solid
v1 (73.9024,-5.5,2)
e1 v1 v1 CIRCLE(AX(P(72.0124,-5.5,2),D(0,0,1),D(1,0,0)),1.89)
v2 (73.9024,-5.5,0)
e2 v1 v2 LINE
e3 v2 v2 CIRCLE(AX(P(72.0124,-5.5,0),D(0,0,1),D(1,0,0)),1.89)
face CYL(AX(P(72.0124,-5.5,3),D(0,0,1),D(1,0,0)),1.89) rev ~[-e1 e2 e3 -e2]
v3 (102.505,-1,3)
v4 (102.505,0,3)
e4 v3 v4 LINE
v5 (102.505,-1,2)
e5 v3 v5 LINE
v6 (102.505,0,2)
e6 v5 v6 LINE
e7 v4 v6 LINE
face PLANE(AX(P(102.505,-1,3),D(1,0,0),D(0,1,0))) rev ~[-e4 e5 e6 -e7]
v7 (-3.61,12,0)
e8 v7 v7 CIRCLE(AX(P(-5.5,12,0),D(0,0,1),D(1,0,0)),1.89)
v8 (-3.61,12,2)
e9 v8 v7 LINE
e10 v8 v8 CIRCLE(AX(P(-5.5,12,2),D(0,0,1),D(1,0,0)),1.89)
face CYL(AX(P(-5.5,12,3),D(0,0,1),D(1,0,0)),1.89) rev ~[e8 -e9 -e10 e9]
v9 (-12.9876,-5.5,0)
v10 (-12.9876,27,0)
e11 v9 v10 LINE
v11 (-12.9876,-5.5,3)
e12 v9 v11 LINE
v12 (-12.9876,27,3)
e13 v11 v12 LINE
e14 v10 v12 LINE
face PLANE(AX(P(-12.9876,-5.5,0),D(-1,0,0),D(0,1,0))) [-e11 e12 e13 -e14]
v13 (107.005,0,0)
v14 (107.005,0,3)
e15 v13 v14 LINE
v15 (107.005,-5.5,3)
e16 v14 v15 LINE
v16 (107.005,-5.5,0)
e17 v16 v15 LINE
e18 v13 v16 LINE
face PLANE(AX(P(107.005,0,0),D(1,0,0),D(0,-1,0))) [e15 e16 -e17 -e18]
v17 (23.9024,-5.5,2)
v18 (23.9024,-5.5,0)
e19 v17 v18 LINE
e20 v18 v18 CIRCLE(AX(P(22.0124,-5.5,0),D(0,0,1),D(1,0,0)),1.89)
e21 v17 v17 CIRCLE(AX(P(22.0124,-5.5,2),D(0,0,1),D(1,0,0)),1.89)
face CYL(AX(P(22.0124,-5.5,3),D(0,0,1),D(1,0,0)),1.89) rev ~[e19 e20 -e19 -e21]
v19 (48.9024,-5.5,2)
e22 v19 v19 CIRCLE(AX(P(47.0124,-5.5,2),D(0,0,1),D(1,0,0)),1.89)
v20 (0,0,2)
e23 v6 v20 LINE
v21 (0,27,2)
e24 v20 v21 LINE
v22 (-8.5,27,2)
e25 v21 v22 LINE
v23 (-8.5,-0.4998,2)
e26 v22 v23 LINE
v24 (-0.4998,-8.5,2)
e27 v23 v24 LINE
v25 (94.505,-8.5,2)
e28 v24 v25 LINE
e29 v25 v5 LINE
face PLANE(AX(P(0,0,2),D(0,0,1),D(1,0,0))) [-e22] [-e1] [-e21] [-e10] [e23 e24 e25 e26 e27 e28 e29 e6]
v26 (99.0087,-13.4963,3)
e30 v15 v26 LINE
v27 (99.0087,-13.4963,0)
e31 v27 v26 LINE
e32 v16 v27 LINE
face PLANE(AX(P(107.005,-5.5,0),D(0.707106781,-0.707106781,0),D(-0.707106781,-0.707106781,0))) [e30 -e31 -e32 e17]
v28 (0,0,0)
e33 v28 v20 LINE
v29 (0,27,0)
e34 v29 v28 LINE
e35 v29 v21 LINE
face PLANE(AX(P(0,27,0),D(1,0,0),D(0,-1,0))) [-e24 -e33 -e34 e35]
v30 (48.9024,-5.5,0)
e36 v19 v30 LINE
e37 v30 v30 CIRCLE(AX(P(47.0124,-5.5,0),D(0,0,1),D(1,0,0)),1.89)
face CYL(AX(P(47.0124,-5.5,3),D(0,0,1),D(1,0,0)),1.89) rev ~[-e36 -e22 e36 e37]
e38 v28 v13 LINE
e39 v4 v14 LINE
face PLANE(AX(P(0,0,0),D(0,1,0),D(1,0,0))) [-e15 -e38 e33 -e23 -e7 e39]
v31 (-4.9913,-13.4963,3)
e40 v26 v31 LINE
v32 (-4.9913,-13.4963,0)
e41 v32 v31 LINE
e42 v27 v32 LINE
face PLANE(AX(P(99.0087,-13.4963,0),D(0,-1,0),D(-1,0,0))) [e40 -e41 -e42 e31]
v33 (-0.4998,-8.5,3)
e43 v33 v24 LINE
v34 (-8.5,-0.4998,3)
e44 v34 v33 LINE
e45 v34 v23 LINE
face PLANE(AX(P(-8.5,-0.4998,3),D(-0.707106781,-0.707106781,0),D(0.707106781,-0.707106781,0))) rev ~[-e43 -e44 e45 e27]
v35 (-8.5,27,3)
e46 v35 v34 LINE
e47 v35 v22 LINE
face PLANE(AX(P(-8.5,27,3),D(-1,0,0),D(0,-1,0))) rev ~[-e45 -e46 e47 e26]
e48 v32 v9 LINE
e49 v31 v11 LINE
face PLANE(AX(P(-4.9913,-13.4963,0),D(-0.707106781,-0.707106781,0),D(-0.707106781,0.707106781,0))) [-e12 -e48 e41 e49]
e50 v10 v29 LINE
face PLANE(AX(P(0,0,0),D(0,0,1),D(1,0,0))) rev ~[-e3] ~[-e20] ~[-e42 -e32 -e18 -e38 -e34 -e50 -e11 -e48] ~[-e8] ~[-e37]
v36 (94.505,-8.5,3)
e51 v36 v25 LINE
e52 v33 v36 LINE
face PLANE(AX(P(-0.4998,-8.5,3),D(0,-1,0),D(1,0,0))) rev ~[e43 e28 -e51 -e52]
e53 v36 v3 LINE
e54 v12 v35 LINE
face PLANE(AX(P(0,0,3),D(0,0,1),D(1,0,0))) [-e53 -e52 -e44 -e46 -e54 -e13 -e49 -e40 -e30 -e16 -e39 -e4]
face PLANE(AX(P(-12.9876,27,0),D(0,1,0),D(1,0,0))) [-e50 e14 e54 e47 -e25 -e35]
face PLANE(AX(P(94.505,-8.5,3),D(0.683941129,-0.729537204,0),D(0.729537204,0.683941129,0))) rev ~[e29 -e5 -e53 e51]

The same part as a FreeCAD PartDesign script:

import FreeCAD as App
import Part
import Sketcher
from FreeCAD import Vector
Q = App.Units.Quantity

doc = App.newDocument("Part")
body = doc.addObject("PartDesign::Body", "Body")

sketch1 = body.newObject("Sketcher::SketchObject", "Sketch")
sketch1.AttachmentSupport = (doc.getObject("XY_Plane"), [""])
sketch1.MapMode = "FlatFace"
sketch1.addGeometry(Part.LineSegment(Vector(107, 0, 0), Vector(0, 0, 0)), False)
sketch1.addGeometry(Part.LineSegment(Vector(0, 0, 0), Vector(0, 27, 0)), False)
sketch1.addGeometry(Part.LineSegment(Vector(0, 27, 0), Vector(-13, 27, 0)), False)
sketch1.addGeometry(Part.LineSegment(Vector(-13, 27, 0), Vector(-13, -6, 0)), False)
sketch1.addGeometry(Part.LineSegment(Vector(-13, -6, 0), Vector(-5, -13, 0)), False)
sketch1.addGeometry(Part.LineSegment(Vector(-5, -13, 0), Vector(99, -13, 0)), False)
sketch1.addGeometry(Part.LineSegment(Vector(99, -13, 0), Vector(107, -6, 0)), False)
sketch1.addGeometry(Part.LineSegment(Vector(107, -6, 0), Vector(107, 0, 0)), False)
sketch1.addConstraint(Sketcher.Constraint("Coincident", 0, 2, 1, 1))
sketch1.addConstraint(Sketcher.Constraint("Coincident", 1, 2, 2, 1))
sketch1.addConstraint(Sketcher.Constraint("Coincident", 2, 2, 3, 1))
sketch1.addConstraint(Sketcher.Constraint("Coincident", 3, 2, 4, 1))
sketch1.addConstraint(Sketcher.Constraint("Coincident", 4, 2, 5, 1))
sketch1.addConstraint(Sketcher.Constraint("Coincident", 5, 2, 6, 1))
sketch1.addConstraint(Sketcher.Constraint("Coincident", 6, 2, 7, 1))
sketch1.addConstraint(Sketcher.Constraint("Coincident", 7, 2, 0, 1))
sketch1.addConstraint(Sketcher.Constraint("Horizontal", 0))
sketch1.addConstraint(Sketcher.Constraint("Vertical", 1))
sketch1.addConstraint(Sketcher.Constraint("Horizontal", 2))
sketch1.addConstraint(Sketcher.Constraint("Vertical", 3))
sketch1.addConstraint(Sketcher.Constraint("Horizontal", 5))
sketch1.addConstraint(Sketcher.Constraint("Vertical", 7))
sketch1.addConstraint(Sketcher.Constraint("Coincident", 0, 2, -1, 1))
sketch1.addConstraint(Sketcher.Constraint("Perpendicular", 4, 6))
sketch1.addConstraint(Sketcher.Constraint("Horizontal", 3, 2, 6, 2))
sketch1.addConstraint(Sketcher.Constraint("Equal", 4, 6))
sketch1.addConstraint(Sketcher.Constraint("DistanceY", 1, 1, 1, 2, 27.0))
sketch1.addConstraint(Sketcher.Constraint("DistanceY", 3, 2, 3, 1, 32.5))
sketch1.addConstraint(Sketcher.Constraint("DistanceX", 0, 2, 0, 1, 107.005))
sketch1.addConstraint(Sketcher.Constraint("DistanceX", 5, 1, 5, 2, 104.0))
sketch1.addConstraint(Sketcher.Constraint("DistanceX", 2, 2, 2, 1, 12.9876))
pad1 = body.newObject("PartDesign::Pad", "Pad")
pad1.Profile = sketch1
pad1.Length = 3

sketch2 = body.newObject("Sketcher::SketchObject", "Sketch001")
sketch2.AttachmentSupport = (doc.getObject("XY_Plane"), [""])
sketch2.MapMode = "FlatFace"
sketch2.AttachmentOffset = App.Placement(Vector(0, 0, 3), App.Rotation())
sketch2.addGeometry(Part.Circle(Vector(-5.5, 12, 0), Vector(0, 0, 1), 1.9), False)
sketch2.addConstraint(Sketcher.Constraint("Diameter", 0, 3.78))
sketch2.addConstraint(Sketcher.Constraint("DistanceX", 0, 3, -1, 1, 5.5))
sketch2.addConstraint(Sketcher.Constraint("DistanceY", -1, 1, 0, 3, 12.0))
pocket1 = body.newObject("PartDesign::Pocket", "Pocket")
pocket1.Profile = sketch2
pocket1.Type = "ThroughAll"

sketch3 = body.newObject("Sketcher::SketchObject", "Sketch002")
sketch3.AttachmentSupport = (doc.getObject("XY_Plane"), [""])
sketch3.MapMode = "FlatFace"
sketch3.AttachmentOffset = App.Placement(Vector(0, 0, 3), App.Rotation())
sketch3.addGeometry(Part.Circle(Vector(22, -5.5, 0), Vector(0, 0, 1), 1.9), False)
sketch3.addConstraint(Sketcher.Constraint("Diameter", 0, 3.78))
sketch3.addConstraint(Sketcher.Constraint("DistanceY", 0, 3, -1, 1, 5.5))
sketch3.addConstraint(Sketcher.Constraint("DistanceX", -1, 1, 0, 3, 22.0124))
pocket2 = body.newObject("PartDesign::Pocket", "Pocket001")
pocket2.Profile = sketch3
pocket2.Type = "ThroughAll"
doc.recompute()

linearpattern = body.newObject("PartDesign::LinearPattern", "LinearPattern")
linearpattern.Originals = [pocket2]
linearpattern.Direction = (doc.getObject("X_Axis"), [""])
linearpattern.Mode = "offset"
linearpattern.Offset = 25
linearpattern.Occurrences = 3
body.Tip = linearpattern

sketch4 = body.newObject("Sketcher::SketchObject", "Sketch003")
sketch4.AttachmentSupport = (doc.getObject("XY_Plane"), [""])
sketch4.MapMode = "FlatFace"
sketch4.AttachmentOffset = App.Placement(Vector(0, 0, 3), App.Rotation())
sketch4.addGeometry(Part.LineSegment(Vector(102.5, 0, 0), Vector(0, 0, 0)), False)
sketch4.addGeometry(Part.LineSegment(Vector(0, 0, 0), Vector(0, 27, 0)), False)
sketch4.addGeometry(Part.LineSegment(Vector(0, 27, 0), Vector(-8.5, 27, 0)), False)
sketch4.addGeometry(Part.LineSegment(Vector(-8.5, 27, 0), Vector(-8.5, -0.5, 0)), False)
sketch4.addGeometry(Part.LineSegment(Vector(-8.5, -0.5, 0), Vector(-0.5, -8.5, 0)), False)
sketch4.addGeometry(Part.LineSegment(Vector(-0.5, -8.5, 0), Vector(94.5, -8.5, 0)), False)
sketch4.addGeometry(Part.LineSegment(Vector(94.5, -8.5, 0), Vector(102.5, -1, 0)), False)
sketch4.addGeometry(Part.LineSegment(Vector(102.5, -1, 0), Vector(102.5, 0, 0)), False)
sketch4.addConstraint(Sketcher.Constraint("Coincident", 0, 2, 1, 1))
sketch4.addConstraint(Sketcher.Constraint("Coincident", 1, 2, 2, 1))
sketch4.addConstraint(Sketcher.Constraint("Coincident", 2, 2, 3, 1))
sketch4.addConstraint(Sketcher.Constraint("Coincident", 3, 2, 4, 1))
sketch4.addConstraint(Sketcher.Constraint("Coincident", 4, 2, 5, 1))
sketch4.addConstraint(Sketcher.Constraint("Coincident", 5, 2, 6, 1))
sketch4.addConstraint(Sketcher.Constraint("Coincident", 6, 2, 7, 1))
sketch4.addConstraint(Sketcher.Constraint("Coincident", 7, 2, 0, 1))
sketch4.addConstraint(Sketcher.Constraint("Horizontal", 0))
sketch4.addConstraint(Sketcher.Constraint("Vertical", 1))
sketch4.addConstraint(Sketcher.Constraint("Horizontal", 2))
sketch4.addConstraint(Sketcher.Constraint("Vertical", 3))
sketch4.addConstraint(Sketcher.Constraint("Horizontal", 5))
sketch4.addConstraint(Sketcher.Constraint("Vertical", 7))
sketch4.addConstraint(Sketcher.Constraint("Coincident", 0, 2, -1, 1))
sketch4.addConstraint(Sketcher.Constraint("DistanceY", 7, 1, 7, 2, 1.0))
sketch4.addConstraint(Sketcher.Constraint("DistanceX", 2, 2, 2, 1, 8.5))
sketch4.addConstraint(Sketcher.Constraint("DistanceY", 4, 2, -1, 1, 8.5))
sketch4.addConstraint(Sketcher.Constraint("DistanceY", 1, 1, 1, 2, 27.0))
sketch4.addConstraint(Sketcher.Constraint("Angle", 4, Q("-45 deg")))
sketch4.addConstraint(Sketcher.Constraint("Distance", 4, 11.314))
sketch4.addConstraint(Sketcher.Constraint("DistanceX", 5, 2, 6, 2, 8.0))
sketch4.addConstraint(Sketcher.Constraint("DistanceX", 0, 2, 0, 1, 102.505))
pocket3 = body.newObject("PartDesign::Pocket", "Pocket002")
pocket3.Profile = sketch4
pocket3.Length = 1

doc.recompute()
